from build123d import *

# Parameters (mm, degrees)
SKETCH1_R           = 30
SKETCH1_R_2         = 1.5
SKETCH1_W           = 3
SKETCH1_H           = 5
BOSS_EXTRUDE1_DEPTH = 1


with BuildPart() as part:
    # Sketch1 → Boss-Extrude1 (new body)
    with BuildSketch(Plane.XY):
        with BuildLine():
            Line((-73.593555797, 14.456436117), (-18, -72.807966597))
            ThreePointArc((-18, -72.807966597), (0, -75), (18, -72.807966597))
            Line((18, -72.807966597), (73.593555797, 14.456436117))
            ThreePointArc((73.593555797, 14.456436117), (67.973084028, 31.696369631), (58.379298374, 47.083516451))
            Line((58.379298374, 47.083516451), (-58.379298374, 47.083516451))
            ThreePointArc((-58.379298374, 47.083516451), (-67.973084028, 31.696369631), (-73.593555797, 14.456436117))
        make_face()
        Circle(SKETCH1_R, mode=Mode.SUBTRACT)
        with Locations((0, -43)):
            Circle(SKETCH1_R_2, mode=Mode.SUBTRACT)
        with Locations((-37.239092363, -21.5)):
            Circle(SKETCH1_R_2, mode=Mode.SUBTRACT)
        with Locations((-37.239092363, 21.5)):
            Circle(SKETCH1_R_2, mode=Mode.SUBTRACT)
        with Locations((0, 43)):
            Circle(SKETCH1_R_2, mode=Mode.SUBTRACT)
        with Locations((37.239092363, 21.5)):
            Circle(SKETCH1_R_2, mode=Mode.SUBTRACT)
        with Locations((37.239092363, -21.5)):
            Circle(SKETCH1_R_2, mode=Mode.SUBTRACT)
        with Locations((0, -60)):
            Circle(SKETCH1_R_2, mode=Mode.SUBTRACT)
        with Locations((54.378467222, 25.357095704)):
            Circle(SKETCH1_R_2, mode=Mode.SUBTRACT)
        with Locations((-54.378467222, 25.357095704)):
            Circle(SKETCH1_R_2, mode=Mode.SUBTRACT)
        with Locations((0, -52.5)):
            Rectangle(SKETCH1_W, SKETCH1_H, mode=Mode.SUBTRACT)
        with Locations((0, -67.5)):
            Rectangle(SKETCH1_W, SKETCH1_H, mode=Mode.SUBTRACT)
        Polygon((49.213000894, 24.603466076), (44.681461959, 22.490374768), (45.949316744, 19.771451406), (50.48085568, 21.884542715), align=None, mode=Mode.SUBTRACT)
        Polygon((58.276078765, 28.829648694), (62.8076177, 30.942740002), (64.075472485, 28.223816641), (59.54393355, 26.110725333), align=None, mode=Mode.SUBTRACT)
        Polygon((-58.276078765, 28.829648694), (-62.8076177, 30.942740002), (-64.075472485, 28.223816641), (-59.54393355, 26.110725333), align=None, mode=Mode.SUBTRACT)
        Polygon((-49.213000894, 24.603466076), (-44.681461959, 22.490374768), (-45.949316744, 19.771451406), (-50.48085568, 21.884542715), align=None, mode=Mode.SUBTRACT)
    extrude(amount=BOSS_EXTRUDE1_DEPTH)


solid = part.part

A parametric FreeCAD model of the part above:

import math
import FreeCAD as App
import Part
import Sketcher

V = App.Vector
Q = App.Units.Quantity

doc = App.newDocument("Part")
body = doc.addObject("PartDesign::Body", "Body")

sketch1 = doc.addObject("Sketcher::SketchObject", "Sketch")
body.addObject(sketch1)
sketch1.AttachmentSupport = (doc.XY_Plane, [""])
sketch1.MapMode = "FlatFace"
sketch1.addGeometry([
    Part.LineSegment(V(-73.6, 14.5, 0), V(-18, -72.8, 0)),
    Part.ArcOfCircle(Part.Circle(V(0, 0, 0), V(0, 0, 1), 75), math.radians(-104), math.radians(-76)),
    Part.LineSegment(V(18, -72.8, 0), V(73.6, 14.5, 0)),
    Part.ArcOfCircle(Part.Circle(V(0, 0, 0), V(0, 0, 1), 75), math.radians(11), math.radians(39)),
    Part.LineSegment(V(58.4, 47.1, 0), V(-58.4, 47.1, 0)),
    Part.ArcOfCircle(Part.Circle(V(0, 0, 0), V(0, 0, 1), 75), math.radians(141), math.radians(169)),
    Part.Circle(V(-37.2, -21.5, 0), V(0, 0, 1), 1.5),
    Part.LineSegment(V(1.5, -70, 0), V(-1.5, -70, 0)),
    Part.LineSegment(V(-1.5, -70, 0), V(-1.5, -65, 0)),
    Part.LineSegment(V(-1.5, -65, 0), V(1.5, -65, 0)),
    Part.LineSegment(V(1.5, -65, 0), V(1.5, -70, 0)),
    Part.Circle(V(0, -60, 0), V(0, 0, 1), 1.5),
    Part.LineSegment(V(1.5, -55, 0), V(-1.5, -55, 0)),
    Part.LineSegment(V(-1.5, -55, 0), V(-1.5, -50, 0)),
    Part.LineSegment(V(-1.5, -50, 0), V(1.5, -50, 0)),
    Part.LineSegment(V(1.5, -50, 0), V(1.5, -55, 0)),
    Part.Circle(V(0, -43, 0), V(0, 0, 1), 1.5),
    Part.Circle(V(37.2, -21.5, 0), V(0, 0, 1), 1.5),
    Part.LineSegment(V(-62.8, 30.9, 0), V(-58.3, 28.8, 0)),
    Part.LineSegment(V(-58.3, 28.8, 0), V(-59.5, 26.1, 0)),
    Part.LineSegment(V(-59.5, 26.1, 0), V(-64.1, 28.2, 0)),
    Part.LineSegment(V(-64.1, 28.2, 0), V(-62.8, 30.9, 0)),
    Part.Circle(V(-54.4, 25.4, 0), V(0, 0, 1), 1.5),
    Part.LineSegment(V(-50.5, 21.9, 0), V(-49.2, 24.6, 0)),
    Part.LineSegment(V(-49.2, 24.6, 0), V(-44.7, 22.5, 0)),
    Part.LineSegment(V(-44.7, 22.5, 0), V(-45.9, 19.8, 0)),
    Part.LineSegment(V(-45.9, 19.8, 0), V(-50.5, 21.9, 0)),
    Part.Circle(V(-37.2, 21.5, 0), V(0, 0, 1), 1.5),
    Part.Circle(V(0, 0, 0), V(0, 0, 1), 30),
    Part.Circle(V(0, 43, 0), V(0, 0, 1), 1.5),
    Part.Circle(V(37.2, 21.5, 0), V(0, 0, 1), 1.5),
    Part.LineSegment(V(44.7, 22.5, 0), V(49.2, 24.6, 0)),
    Part.LineSegment(V(49.2, 24.6, 0), V(50.5, 21.9, 0)),
    Part.LineSegment(V(50.5, 21.9, 0), V(45.9, 19.8, 0)),
    Part.LineSegment(V(45.9, 19.8, 0), V(44.7, 22.5, 0)),
    Part.Circle(V(54.4, 25.4, 0), V(0, 0, 1), 1.5),
    Part.LineSegment(V(59.5, 26.1, 0), V(58.3, 28.8, 0)),
    Part.LineSegment(V(58.3, 28.8, 0), V(62.8, 30.9, 0)),
    Part.LineSegment(V(62.8, 30.9, 0), V(64.1, 28.2, 0)),
    Part.LineSegment(V(64.1, 28.2, 0), V(59.5, 26.1, 0)),
], False)
sketch1.addConstraint([
    Sketcher.Constraint("Coincident", 0, 2, 1, 1),
    Sketcher.Constraint("Coincident", 1, 2, 2, 1),
    Sketcher.Constraint("Coincident", 2, 2, 3, 1),
    Sketcher.Constraint("Coincident", 3, 2, 4, 1),
    Sketcher.Constraint("Coincident", 4, 2, 5, 1),
    Sketcher.Constraint("Coincident", 5, 2, 0, 1),
    Sketcher.Constraint("Coincident", 7, 2, 8, 1),
    Sketcher.Constraint("Coincident", 8, 2, 9, 1),
    Sketcher.Constraint("Coincident", 9, 2, 10, 1),
    Sketcher.Constraint("Coincident", 10, 2, 7, 1),
    Sketcher.Constraint("Coincident", 12, 2, 13, 1),
    Sketcher.Constraint("Coincident", 13, 2, 14, 1),
    Sketcher.Constraint("Coincident", 14, 2, 15, 1),
    Sketcher.Constraint("Coincident", 15, 2, 12, 1),
    Sketcher.Constraint("Coincident", 18, 2, 19, 1),
    Sketcher.Constraint("Coincident", 19, 2, 20, 1),
    Sketcher.Constraint("Coincident", 20, 2, 21, 1),
    Sketcher.Constraint("Coincident", 21, 2, 18, 1),
    Sketcher.Constraint("Coincident", 23, 2, 24, 1),
    Sketcher.Constraint("Coincident", 24, 2, 25, 1),
    Sketcher.Constraint("Coincident", 25, 2, 26, 1),
    Sketcher.Constraint("Coincident", 26, 2, 23, 1),
    Sketcher.Constraint("Coincident", 31, 2, 32, 1),
    Sketcher.Constraint("Coincident", 32, 2, 33, 1),
    Sketcher.Constraint("Coincident", 33, 2, 34, 1),
    Sketcher.Constraint("Coincident", 34, 2, 31, 1),
    Sketcher.Constraint("Coincident", 36, 2, 37, 1),
    Sketcher.Constraint("Coincident", 37, 2, 38, 1),
    Sketcher.Constraint("Coincident", 38, 2, 39, 1),
    Sketcher.Constraint("Coincident", 39, 2, 36, 1),
    Sketcher.Constraint("Horizontal", 4),
    Sketcher.Constraint("Horizontal", 7),
    Sketcher.Constraint("Vertical", 8),
    Sketcher.Constraint("Horizontal", 9),
    Sketcher.Constraint("Vertical", 10),
    Sketcher.Constraint("Horizontal", 12),
    Sketcher.Constraint("Vertical", 13),
    Sketcher.Constraint("Horizontal", 14),
    Sketcher.Constraint("Vertical", 15),
    Sketcher.Constraint("Coincident", 1, 3, -1, 1),
    Sketcher.Constraint("Coincident", 3, 3, -1, 1),
    Sketcher.Constraint("Coincident", 5, 3, -1, 1),
    Sketcher.Constraint("Coincident", 28, 3, -1, 1),
    Sketcher.Constraint("Equal", 1, 3),
    Sketcher.Constraint("Equal", 3, 5),
    Sketcher.Constraint("Equal", 6, 11),
    Sketcher.Constraint("Equal", 11, 16),
    Sketcher.Constraint("Equal", 16, 17),
    Sketcher.Constraint("Equal", 17, 22),
    Sketcher.Constraint("Equal", 22, 27),
    Sketcher.Constraint("Equal", 27, 29),
    Sketcher.Constraint("Equal", 29, 30),
    Sketcher.Constraint("Equal", 30, 35),
    Sketcher.Constraint("Symmetric", 17, 3, 27, 3, -1, 1),
    Sketcher.Constraint("Symmetric", 16, 3, 29, 3, -1, 1),
    Sketcher.Constraint("Symmetric", 6, 3, 30, 3, -1, 1),
    Sketcher.Constraint("Symmetric", 6, 3, 17, 3, -2),
    Sketcher.Constraint("Symmetric", 22, 3, 35, 3, -2),
    Sketcher.Constraint("Symmetric", 23, 2, 31, 2, -2),
    Sketcher.Constraint("Symmetric", 26, 2, 32, 2, -2),
    Sketcher.Constraint("Symmetric", 25, 2, 33, 2, -2),
    Sketcher.Constraint("Symmetric", 24, 2, 34, 2, -2),
    Sketcher.Constraint("Symmetric", 18, 2, 36, 2, -2),
    Sketcher.Constraint("Symmetric", 21, 2, 37, 2, -2),
    Sketcher.Constraint("Symmetric", 20, 2, 38, 2, -2),
    Sketcher.Constraint("Symmetric", 19, 2, 39, 2, -2),
    Sketcher.Constraint("PointOnObject", 11, 3, -2),
    Sketcher.Constraint("PointOnObject", 16, 3, -2),
    Sketcher.Constraint("Perpendicular", 18, 19),
    Sketcher.Constraint("Perpendicular", 19, 20),
    Sketcher.Constraint("Perpendicular", 20, 21),
    Sketcher.Constraint("Parallel", 21, 23),
    Sketcher.Constraint("Perpendicular", 23, 24),
    Sketcher.Constraint("Perpendicular", 24, 25),
    Sketcher.Constraint("Perpendicular", 25, 26),
    Sketcher.Constraint("Horizontal", 0, 2, 1, 2),
    Sketcher.Constraint("Horizontal", 2, 2, 5, 2),
    Sketcher.Constraint("Vertical", 8, 2, 12, 2),
    Sketcher.Constraint("Vertical", 10, 2, 14, 2),
    Sketcher.Constraint("Equal", 10, 13),
    Sketcher.Constraint("Equal", 21, 23),
    Sketcher.Constraint("Equal", 20, 24),
    Sketcher.Constraint("Diameter", 6, 3.0),
    Sketcher.Constraint("Diameter", 28, 60.0),
    Sketcher.Constraint("Radius", 1, 75.0),
    Sketcher.Constraint("DistanceX", 7, 2, 7, 1, 3.0),
    Sketcher.Constraint("DistanceY", 8, 1, 8, 2, 5.0),
    Sketcher.Constraint("Angle", 18, Q("-25 deg")),
    Sketcher.Constraint("Distance", 18, 5.0),
    Sketcher.Constraint("Distance", 19, 3.0),
    Sketcher.Constraint("DistanceY", 11, 3, -1, 1, 60.0),
    Sketcher.Constraint("DistanceY", 16, 3, -1, 1, 43.0),
    Sketcher.Constraint("DistanceX", 0, 2, -1, 1, 18.0),
    Sketcher.Constraint("DistanceY", 7, 2, -1, 1, 70.0),
    Sketcher.Constraint("DistanceY", 12, 2, -1, 1, 55.0),
    Sketcher.Constraint("Angle", 0, Q("-57.5 deg")),
    Sketcher.Constraint("DistanceY", 6, 3, 27, 3, 43.0),
    Sketcher.Constraint("DistanceX", 7, 2, -1, 1, 1.5),
    Sketcher.Constraint("DistanceX", 23, 2, -1, 1, 49.213001),
    Sketcher.Constraint("DistanceX", -1, 1, 3, 2, 58.379298),
    Sketcher.Constraint("DistanceY", 20, 2, 4, 2, 18.8597),
    Sketcher.Constraint("DistanceX", 18, 2, -1, 1, 58.276079),
    Sketcher.Constraint("DistanceY", -1, 1, 25, 2, 19.771451),
    Sketcher.Constraint("DistanceX", 35, 3, 2, 2, 19.215089),
    Sketcher.Constraint("DistanceY", 2, 2, 35, 3, 10.90066),
    Sketcher.Constraint("DistanceX", 19, 2, 27, 3, 22.304841),
])
pad1 = doc.addObject("PartDesign::Pad", "Pad")
body.addObject(pad1)
pad1.Profile = sketch1
pad1.Length = 1

doc.recompute()
